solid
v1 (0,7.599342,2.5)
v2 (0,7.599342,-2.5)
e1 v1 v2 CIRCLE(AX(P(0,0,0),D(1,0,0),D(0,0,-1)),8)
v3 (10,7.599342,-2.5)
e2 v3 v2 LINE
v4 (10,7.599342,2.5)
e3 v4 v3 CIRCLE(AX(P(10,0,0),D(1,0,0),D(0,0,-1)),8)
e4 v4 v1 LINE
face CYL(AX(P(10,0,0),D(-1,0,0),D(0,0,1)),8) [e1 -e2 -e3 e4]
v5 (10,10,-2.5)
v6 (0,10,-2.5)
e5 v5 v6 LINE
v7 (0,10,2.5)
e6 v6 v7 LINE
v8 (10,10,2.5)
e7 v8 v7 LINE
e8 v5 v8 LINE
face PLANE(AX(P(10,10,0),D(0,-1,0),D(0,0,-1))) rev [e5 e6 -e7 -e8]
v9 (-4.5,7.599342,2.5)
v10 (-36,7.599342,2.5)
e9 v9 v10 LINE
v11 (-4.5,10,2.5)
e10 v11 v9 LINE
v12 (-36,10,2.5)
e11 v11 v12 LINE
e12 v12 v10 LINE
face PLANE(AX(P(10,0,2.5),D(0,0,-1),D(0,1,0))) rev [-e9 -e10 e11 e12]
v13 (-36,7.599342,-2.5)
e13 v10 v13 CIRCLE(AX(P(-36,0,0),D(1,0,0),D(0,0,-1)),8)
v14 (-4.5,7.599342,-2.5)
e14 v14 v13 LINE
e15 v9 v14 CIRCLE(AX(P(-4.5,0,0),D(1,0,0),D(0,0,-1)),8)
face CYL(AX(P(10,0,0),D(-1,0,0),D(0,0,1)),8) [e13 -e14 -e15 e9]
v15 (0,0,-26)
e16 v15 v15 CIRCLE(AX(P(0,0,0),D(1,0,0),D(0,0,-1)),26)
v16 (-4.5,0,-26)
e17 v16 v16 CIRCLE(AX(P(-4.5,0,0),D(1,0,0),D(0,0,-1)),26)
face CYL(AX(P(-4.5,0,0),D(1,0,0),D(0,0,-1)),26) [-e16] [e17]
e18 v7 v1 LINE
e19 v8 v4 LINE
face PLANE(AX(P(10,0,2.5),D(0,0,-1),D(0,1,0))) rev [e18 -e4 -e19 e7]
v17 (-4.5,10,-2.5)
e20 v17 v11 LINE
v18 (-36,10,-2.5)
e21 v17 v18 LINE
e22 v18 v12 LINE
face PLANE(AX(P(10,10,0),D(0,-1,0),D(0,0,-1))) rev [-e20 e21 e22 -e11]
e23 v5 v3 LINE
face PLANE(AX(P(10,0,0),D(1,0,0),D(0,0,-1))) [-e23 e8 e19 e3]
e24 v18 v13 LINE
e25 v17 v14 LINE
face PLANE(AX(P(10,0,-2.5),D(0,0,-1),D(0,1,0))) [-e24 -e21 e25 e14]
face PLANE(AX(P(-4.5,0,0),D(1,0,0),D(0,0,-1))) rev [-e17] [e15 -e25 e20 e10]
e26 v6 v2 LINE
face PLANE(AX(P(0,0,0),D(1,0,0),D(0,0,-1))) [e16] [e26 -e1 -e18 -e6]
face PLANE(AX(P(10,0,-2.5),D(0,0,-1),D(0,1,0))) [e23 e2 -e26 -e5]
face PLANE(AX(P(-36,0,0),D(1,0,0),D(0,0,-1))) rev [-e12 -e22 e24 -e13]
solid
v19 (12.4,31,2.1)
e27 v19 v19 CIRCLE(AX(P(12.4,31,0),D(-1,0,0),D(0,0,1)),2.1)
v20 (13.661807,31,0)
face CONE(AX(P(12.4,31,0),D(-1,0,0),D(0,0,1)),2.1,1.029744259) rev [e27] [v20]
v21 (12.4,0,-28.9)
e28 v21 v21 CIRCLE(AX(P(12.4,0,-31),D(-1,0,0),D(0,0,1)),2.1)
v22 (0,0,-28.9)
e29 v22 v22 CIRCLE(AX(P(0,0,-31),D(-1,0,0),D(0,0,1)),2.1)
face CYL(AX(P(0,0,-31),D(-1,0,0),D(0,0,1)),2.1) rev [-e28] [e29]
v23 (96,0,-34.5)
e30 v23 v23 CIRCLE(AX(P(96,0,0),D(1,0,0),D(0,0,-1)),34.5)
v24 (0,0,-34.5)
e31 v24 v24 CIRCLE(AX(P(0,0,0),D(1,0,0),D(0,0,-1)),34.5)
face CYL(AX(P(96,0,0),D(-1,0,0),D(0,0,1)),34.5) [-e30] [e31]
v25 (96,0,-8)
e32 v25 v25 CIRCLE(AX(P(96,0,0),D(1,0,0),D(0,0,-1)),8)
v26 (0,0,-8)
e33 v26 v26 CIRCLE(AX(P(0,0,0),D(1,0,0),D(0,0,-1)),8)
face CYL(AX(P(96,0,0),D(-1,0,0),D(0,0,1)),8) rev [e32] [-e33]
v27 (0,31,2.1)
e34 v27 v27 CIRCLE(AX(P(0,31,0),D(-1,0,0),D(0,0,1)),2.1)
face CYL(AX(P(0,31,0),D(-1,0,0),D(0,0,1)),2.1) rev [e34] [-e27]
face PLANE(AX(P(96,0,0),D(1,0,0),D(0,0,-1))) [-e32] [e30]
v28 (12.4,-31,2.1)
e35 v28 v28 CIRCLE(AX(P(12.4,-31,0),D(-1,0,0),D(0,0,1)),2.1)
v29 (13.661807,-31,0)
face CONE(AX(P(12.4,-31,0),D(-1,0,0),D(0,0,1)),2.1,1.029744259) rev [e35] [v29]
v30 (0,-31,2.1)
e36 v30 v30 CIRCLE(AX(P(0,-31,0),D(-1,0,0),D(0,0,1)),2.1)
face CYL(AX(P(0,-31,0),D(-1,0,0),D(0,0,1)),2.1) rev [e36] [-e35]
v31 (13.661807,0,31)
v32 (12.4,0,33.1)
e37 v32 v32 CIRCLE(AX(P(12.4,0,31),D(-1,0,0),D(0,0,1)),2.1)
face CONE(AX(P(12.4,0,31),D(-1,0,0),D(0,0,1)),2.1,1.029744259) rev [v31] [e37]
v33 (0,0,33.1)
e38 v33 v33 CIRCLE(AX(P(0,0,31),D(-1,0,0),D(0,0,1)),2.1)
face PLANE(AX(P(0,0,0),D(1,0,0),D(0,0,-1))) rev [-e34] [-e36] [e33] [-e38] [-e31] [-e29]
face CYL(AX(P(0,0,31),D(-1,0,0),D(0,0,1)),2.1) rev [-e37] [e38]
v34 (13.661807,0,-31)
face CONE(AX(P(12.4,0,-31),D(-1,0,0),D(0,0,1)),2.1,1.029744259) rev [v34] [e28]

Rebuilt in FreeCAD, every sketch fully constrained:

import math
import FreeCAD as App
import Part
import Sketcher
Q = App.Units.Quantity


def add_polygon(sketch, points):
    """Adds a closed chain of lines whose ends are joined by coincident constraints."""
    first, n = sketch.GeometryCount, len(points)
    for a, b in zip(points, points[1:] + points[:1]):
        sketch.addGeometry(Part.LineSegment(App.Vector(*a, 0), App.Vector(*b, 0)), False)
    for i in range(n):
        sketch.addConstraint(Sketcher.Constraint("Coincident", first + i, 2, first + (i + 1) % n, 1))

doc = App.newDocument("Part")
body = doc.addObject("PartDesign::Body", "Body")

# Sketch on YZ plane
sketch1 = body.newObject("Sketcher::SketchObject", "Sketch")
sketch1.AttachmentSupport = (doc.getObject("YZ_Plane"), [""])
sketch1.MapMode = "FlatFace"
sketch1.addGeometry(Part.ArcOfCircle(Part.Circle(App.Vector(0, 0, 0), App.Vector(0, 0, 1), 8), math.radians(-90), math.radians(-18.209957)), False)
sketch1.addGeometry(Part.LineSegment(App.Vector(7.599342, -2.5, 0), App.Vector(10, -2.5, 0)), False)
sketch1.addGeometry(Part.LineSegment(App.Vector(10, -2.5, 0), App.Vector(10, 2.5, 0)), False)
sketch1.addGeometry(Part.LineSegment(App.Vector(10, 2.5, 0), App.Vector(7.599342, 2.5, 0)), False)
sketch1.addGeometry(Part.ArcOfCircle(Part.Circle(App.Vector(0, 0, 0), App.Vector(0, 0, 1), 8), math.radians(18.209957), math.radians(270)), False)
sketch1.addConstraint(Sketcher.Constraint("Coincident", 0, 2, 1, 1))
sketch1.addConstraint(Sketcher.Constraint("Coincident", 1, 2, 2, 1))
sketch1.addConstraint(Sketcher.Constraint("Coincident", 2, 2, 3, 1))
sketch1.addConstraint(Sketcher.Constraint("Coincident", 3, 2, 4, 1))
sketch1.addConstraint(Sketcher.Constraint("Tangent", 4, 2, 0, 1))
sketch1.addConstraint(Sketcher.Constraint("Horizontal", 1))
sketch1.addConstraint(Sketcher.Constraint("Vertical", 2))
sketch1.addConstraint(Sketcher.Constraint("Horizontal", 3))
sketch1.addConstraint(Sketcher.Constraint("Coincident", 0, 3, -1, 1))
sketch1.addConstraint(Sketcher.Constraint("Equal", 0, 4))
sketch1.addConstraint(Sketcher.Constraint("PointOnObject", 4, 2, -2))
sketch1.addConstraint(Sketcher.Constraint("Vertical", 0, 2, 3, 2))
sketch1.addConstraint(Sketcher.Constraint("Radius", 0, 8.0))
sketch1.addConstraint(Sketcher.Constraint("DistanceY", 2, 1, 2, 2, 5.0))
sketch1.addConstraint(Sketcher.Constraint("DistanceX", -1, 1, 1, 2, 10.0))
pad1 = body.newObject("PartDesign::Pad", "Pad")
pad1.Profile = sketch1
pad1.Type = "TwoLengths"
pad1.Length = 10
pad1.Length2 = 36

# Sketch on YZ plane
sketch2 = body.newObject("Sketcher::SketchObject", "Sketch001")
sketch2.AttachmentSupport = (doc.getObject("YZ_Plane"), [""])
sketch2.MapMode = "FlatFace"
sketch2.addGeometry(Part.Circle(App.Vector(0, 0, 0), App.Vector(0, 0, 1), 26), False)
sketch2.addGeometry(Part.LineSegment(App.Vector(7.599342, 2.5, 0), App.Vector(10, 2.5, 0)), False)
sketch2.addGeometry(Part.LineSegment(App.Vector(10, 2.5, 0), App.Vector(10, -2.5, 0)), False)
sketch2.addGeometry(Part.LineSegment(App.Vector(10, -2.5, 0), App.Vector(7.599342, -2.5, 0)), False)
sketch2.addGeometry(Part.ArcOfCircle(Part.Circle(App.Vector(0, 0, 0), App.Vector(0, 0, 1), 8), math.radians(-90), math.radians(-18.209957)), False)
sketch2.addGeometry(Part.ArcOfCircle(Part.Circle(App.Vector(0, 0, 0), App.Vector(0, 0, 1), 8), math.radians(18.209957), math.radians(270)), False)
sketch2.addConstraint(Sketcher.Constraint("Coincident", 1, 2, 2, 1))
sketch2.addConstraint(Sketcher.Constraint("Coincident", 2, 2, 3, 1))
sketch2.addConstraint(Sketcher.Constraint("Coincident", 3, 2, 4, 2))
sketch2.addConstraint(Sketcher.Constraint("Tangent", 4, 1, 5, 2))
sketch2.addConstraint(Sketcher.Constraint("Coincident", 5, 1, 1, 1))
sketch2.addConstraint(Sketcher.Constraint("Horizontal", 1))
sketch2.addConstraint(Sketcher.Constraint("Vertical", 2))
sketch2.addConstraint(Sketcher.Constraint("Horizontal", 3))
sketch2.addConstraint(Sketcher.Constraint("Coincident", 0, 3, -1, 1))
sketch2.addConstraint(Sketcher.Constraint("Coincident", 4, 3, -1, 1))
sketch2.addConstraint(Sketcher.Constraint("Equal", 4, 5))
sketch2.addConstraint(Sketcher.Constraint("PointOnObject", 4, 1, -2))
sketch2.addConstraint(Sketcher.Constraint("Vertical", 3, 2, 5, 1))
sketch2.addConstraint(Sketcher.Constraint("Diameter", 0, 52.0))
sketch2.addConstraint(Sketcher.Constraint("Radius", 4, 8.0))
sketch2.addConstraint(Sketcher.Constraint("DistanceY", 2, 2, 2, 1, 5.0))
sketch2.addConstraint(Sketcher.Constraint("DistanceX", -1, 1, 1, 2, 10.0))
pad2 = body.newObject("PartDesign::Pad", "Pad001")
pad2.Profile = sketch2
pad2.Length = 4.5
pad2.Reversed = True
body2 = doc.addObject("PartDesign::Body", "Body001")

# Sketch on YZ plane
sketch3 = body2.newObject("Sketcher::SketchObject", "Sketch002")
sketch3.AttachmentSupport = (doc.getObject("YZ_Plane001"), [""])
sketch3.MapMode = "FlatFace"
sketch3.addGeometry(Part.Circle(App.Vector(0, 0, 0), App.Vector(0, 0, 1), 34.5), False)
sketch3.addGeometry(Part.ArcOfCircle(Part.Circle(App.Vector(0, 0, 0), App.Vector(0, 0, 1), 8), math.radians(18.209957), math.radians(270)), False)
sketch3.addGeometry(Part.ArcOfCircle(Part.Circle(App.Vector(0, 0, 0), App.Vector(0, 0, 1), 8), math.radians(-18.209957), math.radians(18.209957)), False)
sketch3.addGeometry(Part.ArcOfCircle(Part.Circle(App.Vector(0, 0, 0), App.Vector(0, 0, 1), 8), math.radians(-90), math.radians(-18.209957)), False)
sketch3.addConstraint(Sketcher.Constraint("Tangent", 1, 1, 2, 2))
sketch3.addConstraint(Sketcher.Constraint("Tangent", 2, 1, 3, 2))
sketch3.addConstraint(Sketcher.Constraint("Tangent", 3, 1, 1, 2))
sketch3.addConstraint(Sketcher.Constraint("Coincident", 0, 3, -1, 1))
sketch3.addConstraint(Sketcher.Constraint("Coincident", 1, 3, -1, 1))
sketch3.addConstraint(Sketcher.Constraint("PointOnObject", 3, 1, -2))
sketch3.addConstraint(Sketcher.Constraint("Vertical", 1, 1, 2, 1))
sketch3.addConstraint(Sketcher.Constraint("Diameter", 0, 69.0))
sketch3.addConstraint(Sketcher.Constraint("Radius", 1, 8.0))
sketch3.addConstraint(Sketcher.Constraint("DistanceY", 2, 1, 1, 1, 5.0))
pad3 = body2.newObject("PartDesign::Pad", "Pad002")
pad3.Profile = sketch3
pad3.Length = 96

# Sketch on XZ plane
sketch4 = body2.newObject("Sketcher::SketchObject", "Sketch003")
sketch4.AttachmentSupport = (doc.getObject("XZ_Plane001"), [""])
sketch4.MapMode = "FlatFace"
sketch4.AttachmentOffset = App.Placement(App.Vector(0, 0, -31), App.Rotation())
add_polygon(sketch4, [(13.661807, 0), (0, 0), (0, 2.1), (12.4, 2.1)])  # lines 0-3
sketch4.addConstraint(Sketcher.Constraint("Horizontal", 0))
sketch4.addConstraint(Sketcher.Constraint("Vertical", 1))
sketch4.addConstraint(Sketcher.Constraint("Horizontal", 2))
sketch4.addConstraint(Sketcher.Constraint("Coincident", 0, 2, -1, 1))
sketch4.addConstraint(Sketcher.Constraint("Angle", 3, Q("-59 deg")))
sketch4.addConstraint(Sketcher.Constraint("DistanceX", 2, 1, 2, 2, 12.4))
sketch4.addConstraint(Sketcher.Constraint("DistanceY", 1, 1, 1, 2, 2.1))
groove = body2.newObject("PartDesign::Groove", "Groove")
groove.Profile = sketch4
groove.ReferenceAxis = (sketch4, ["H_Axis"])
groove.Angle = 360
doc.recompute()

datumline = body2.newObject("PartDesign::Line", "DatumLine")
datumline.Placement = App.Placement(App.Vector(0, 0, 0), App.Rotation(App.Vector(0, 0, 1), App.Vector(0, -0.707106781, -0.707106781)))
linearpattern = body2.newObject("PartDesign::LinearPattern", "LinearPattern")
linearpattern.Originals = [groove]
linearpattern.Direction = (datumline, [""])
linearpattern.Mode = "offset"
linearpattern.Offset = 43.84062
linearpattern.Occurrences = 2
body2.Tip = linearpattern
doc.recompute()

linearpattern2 = body2.newObject("PartDesign::LinearPattern", "LinearPattern001")
linearpattern2.Originals = [groove]
linearpattern2.Direction = (doc.getObject("Y_Axis001"), [""])
linearpattern2.Mode = "offset"
linearpattern2.Offset = 62
linearpattern2.Occurrences = 2
linearpattern2.Reversed = True
body2.Tip = linearpattern2
doc.recompute()

datumline2 = body2.newObject("PartDesign::Line", "DatumLine001")
datumline2.Placement = App.Placement(App.Vector(0, 0, 0), App.Rotation(App.Vector(0, 0, 1), App.Vector(0, -0.707106781, 0.707106781)))
linearpattern3 = body2.newObject("PartDesign::LinearPattern", "LinearPattern002")
linearpattern3.Originals = [groove]
linearpattern3.Direction = (datumline2, [""])
linearpattern3.Mode = "offset"
linearpattern3.Offset = 43.84062
linearpattern3.Occurrences = 2
body2.Tip = linearpattern3

doc.recompute()
